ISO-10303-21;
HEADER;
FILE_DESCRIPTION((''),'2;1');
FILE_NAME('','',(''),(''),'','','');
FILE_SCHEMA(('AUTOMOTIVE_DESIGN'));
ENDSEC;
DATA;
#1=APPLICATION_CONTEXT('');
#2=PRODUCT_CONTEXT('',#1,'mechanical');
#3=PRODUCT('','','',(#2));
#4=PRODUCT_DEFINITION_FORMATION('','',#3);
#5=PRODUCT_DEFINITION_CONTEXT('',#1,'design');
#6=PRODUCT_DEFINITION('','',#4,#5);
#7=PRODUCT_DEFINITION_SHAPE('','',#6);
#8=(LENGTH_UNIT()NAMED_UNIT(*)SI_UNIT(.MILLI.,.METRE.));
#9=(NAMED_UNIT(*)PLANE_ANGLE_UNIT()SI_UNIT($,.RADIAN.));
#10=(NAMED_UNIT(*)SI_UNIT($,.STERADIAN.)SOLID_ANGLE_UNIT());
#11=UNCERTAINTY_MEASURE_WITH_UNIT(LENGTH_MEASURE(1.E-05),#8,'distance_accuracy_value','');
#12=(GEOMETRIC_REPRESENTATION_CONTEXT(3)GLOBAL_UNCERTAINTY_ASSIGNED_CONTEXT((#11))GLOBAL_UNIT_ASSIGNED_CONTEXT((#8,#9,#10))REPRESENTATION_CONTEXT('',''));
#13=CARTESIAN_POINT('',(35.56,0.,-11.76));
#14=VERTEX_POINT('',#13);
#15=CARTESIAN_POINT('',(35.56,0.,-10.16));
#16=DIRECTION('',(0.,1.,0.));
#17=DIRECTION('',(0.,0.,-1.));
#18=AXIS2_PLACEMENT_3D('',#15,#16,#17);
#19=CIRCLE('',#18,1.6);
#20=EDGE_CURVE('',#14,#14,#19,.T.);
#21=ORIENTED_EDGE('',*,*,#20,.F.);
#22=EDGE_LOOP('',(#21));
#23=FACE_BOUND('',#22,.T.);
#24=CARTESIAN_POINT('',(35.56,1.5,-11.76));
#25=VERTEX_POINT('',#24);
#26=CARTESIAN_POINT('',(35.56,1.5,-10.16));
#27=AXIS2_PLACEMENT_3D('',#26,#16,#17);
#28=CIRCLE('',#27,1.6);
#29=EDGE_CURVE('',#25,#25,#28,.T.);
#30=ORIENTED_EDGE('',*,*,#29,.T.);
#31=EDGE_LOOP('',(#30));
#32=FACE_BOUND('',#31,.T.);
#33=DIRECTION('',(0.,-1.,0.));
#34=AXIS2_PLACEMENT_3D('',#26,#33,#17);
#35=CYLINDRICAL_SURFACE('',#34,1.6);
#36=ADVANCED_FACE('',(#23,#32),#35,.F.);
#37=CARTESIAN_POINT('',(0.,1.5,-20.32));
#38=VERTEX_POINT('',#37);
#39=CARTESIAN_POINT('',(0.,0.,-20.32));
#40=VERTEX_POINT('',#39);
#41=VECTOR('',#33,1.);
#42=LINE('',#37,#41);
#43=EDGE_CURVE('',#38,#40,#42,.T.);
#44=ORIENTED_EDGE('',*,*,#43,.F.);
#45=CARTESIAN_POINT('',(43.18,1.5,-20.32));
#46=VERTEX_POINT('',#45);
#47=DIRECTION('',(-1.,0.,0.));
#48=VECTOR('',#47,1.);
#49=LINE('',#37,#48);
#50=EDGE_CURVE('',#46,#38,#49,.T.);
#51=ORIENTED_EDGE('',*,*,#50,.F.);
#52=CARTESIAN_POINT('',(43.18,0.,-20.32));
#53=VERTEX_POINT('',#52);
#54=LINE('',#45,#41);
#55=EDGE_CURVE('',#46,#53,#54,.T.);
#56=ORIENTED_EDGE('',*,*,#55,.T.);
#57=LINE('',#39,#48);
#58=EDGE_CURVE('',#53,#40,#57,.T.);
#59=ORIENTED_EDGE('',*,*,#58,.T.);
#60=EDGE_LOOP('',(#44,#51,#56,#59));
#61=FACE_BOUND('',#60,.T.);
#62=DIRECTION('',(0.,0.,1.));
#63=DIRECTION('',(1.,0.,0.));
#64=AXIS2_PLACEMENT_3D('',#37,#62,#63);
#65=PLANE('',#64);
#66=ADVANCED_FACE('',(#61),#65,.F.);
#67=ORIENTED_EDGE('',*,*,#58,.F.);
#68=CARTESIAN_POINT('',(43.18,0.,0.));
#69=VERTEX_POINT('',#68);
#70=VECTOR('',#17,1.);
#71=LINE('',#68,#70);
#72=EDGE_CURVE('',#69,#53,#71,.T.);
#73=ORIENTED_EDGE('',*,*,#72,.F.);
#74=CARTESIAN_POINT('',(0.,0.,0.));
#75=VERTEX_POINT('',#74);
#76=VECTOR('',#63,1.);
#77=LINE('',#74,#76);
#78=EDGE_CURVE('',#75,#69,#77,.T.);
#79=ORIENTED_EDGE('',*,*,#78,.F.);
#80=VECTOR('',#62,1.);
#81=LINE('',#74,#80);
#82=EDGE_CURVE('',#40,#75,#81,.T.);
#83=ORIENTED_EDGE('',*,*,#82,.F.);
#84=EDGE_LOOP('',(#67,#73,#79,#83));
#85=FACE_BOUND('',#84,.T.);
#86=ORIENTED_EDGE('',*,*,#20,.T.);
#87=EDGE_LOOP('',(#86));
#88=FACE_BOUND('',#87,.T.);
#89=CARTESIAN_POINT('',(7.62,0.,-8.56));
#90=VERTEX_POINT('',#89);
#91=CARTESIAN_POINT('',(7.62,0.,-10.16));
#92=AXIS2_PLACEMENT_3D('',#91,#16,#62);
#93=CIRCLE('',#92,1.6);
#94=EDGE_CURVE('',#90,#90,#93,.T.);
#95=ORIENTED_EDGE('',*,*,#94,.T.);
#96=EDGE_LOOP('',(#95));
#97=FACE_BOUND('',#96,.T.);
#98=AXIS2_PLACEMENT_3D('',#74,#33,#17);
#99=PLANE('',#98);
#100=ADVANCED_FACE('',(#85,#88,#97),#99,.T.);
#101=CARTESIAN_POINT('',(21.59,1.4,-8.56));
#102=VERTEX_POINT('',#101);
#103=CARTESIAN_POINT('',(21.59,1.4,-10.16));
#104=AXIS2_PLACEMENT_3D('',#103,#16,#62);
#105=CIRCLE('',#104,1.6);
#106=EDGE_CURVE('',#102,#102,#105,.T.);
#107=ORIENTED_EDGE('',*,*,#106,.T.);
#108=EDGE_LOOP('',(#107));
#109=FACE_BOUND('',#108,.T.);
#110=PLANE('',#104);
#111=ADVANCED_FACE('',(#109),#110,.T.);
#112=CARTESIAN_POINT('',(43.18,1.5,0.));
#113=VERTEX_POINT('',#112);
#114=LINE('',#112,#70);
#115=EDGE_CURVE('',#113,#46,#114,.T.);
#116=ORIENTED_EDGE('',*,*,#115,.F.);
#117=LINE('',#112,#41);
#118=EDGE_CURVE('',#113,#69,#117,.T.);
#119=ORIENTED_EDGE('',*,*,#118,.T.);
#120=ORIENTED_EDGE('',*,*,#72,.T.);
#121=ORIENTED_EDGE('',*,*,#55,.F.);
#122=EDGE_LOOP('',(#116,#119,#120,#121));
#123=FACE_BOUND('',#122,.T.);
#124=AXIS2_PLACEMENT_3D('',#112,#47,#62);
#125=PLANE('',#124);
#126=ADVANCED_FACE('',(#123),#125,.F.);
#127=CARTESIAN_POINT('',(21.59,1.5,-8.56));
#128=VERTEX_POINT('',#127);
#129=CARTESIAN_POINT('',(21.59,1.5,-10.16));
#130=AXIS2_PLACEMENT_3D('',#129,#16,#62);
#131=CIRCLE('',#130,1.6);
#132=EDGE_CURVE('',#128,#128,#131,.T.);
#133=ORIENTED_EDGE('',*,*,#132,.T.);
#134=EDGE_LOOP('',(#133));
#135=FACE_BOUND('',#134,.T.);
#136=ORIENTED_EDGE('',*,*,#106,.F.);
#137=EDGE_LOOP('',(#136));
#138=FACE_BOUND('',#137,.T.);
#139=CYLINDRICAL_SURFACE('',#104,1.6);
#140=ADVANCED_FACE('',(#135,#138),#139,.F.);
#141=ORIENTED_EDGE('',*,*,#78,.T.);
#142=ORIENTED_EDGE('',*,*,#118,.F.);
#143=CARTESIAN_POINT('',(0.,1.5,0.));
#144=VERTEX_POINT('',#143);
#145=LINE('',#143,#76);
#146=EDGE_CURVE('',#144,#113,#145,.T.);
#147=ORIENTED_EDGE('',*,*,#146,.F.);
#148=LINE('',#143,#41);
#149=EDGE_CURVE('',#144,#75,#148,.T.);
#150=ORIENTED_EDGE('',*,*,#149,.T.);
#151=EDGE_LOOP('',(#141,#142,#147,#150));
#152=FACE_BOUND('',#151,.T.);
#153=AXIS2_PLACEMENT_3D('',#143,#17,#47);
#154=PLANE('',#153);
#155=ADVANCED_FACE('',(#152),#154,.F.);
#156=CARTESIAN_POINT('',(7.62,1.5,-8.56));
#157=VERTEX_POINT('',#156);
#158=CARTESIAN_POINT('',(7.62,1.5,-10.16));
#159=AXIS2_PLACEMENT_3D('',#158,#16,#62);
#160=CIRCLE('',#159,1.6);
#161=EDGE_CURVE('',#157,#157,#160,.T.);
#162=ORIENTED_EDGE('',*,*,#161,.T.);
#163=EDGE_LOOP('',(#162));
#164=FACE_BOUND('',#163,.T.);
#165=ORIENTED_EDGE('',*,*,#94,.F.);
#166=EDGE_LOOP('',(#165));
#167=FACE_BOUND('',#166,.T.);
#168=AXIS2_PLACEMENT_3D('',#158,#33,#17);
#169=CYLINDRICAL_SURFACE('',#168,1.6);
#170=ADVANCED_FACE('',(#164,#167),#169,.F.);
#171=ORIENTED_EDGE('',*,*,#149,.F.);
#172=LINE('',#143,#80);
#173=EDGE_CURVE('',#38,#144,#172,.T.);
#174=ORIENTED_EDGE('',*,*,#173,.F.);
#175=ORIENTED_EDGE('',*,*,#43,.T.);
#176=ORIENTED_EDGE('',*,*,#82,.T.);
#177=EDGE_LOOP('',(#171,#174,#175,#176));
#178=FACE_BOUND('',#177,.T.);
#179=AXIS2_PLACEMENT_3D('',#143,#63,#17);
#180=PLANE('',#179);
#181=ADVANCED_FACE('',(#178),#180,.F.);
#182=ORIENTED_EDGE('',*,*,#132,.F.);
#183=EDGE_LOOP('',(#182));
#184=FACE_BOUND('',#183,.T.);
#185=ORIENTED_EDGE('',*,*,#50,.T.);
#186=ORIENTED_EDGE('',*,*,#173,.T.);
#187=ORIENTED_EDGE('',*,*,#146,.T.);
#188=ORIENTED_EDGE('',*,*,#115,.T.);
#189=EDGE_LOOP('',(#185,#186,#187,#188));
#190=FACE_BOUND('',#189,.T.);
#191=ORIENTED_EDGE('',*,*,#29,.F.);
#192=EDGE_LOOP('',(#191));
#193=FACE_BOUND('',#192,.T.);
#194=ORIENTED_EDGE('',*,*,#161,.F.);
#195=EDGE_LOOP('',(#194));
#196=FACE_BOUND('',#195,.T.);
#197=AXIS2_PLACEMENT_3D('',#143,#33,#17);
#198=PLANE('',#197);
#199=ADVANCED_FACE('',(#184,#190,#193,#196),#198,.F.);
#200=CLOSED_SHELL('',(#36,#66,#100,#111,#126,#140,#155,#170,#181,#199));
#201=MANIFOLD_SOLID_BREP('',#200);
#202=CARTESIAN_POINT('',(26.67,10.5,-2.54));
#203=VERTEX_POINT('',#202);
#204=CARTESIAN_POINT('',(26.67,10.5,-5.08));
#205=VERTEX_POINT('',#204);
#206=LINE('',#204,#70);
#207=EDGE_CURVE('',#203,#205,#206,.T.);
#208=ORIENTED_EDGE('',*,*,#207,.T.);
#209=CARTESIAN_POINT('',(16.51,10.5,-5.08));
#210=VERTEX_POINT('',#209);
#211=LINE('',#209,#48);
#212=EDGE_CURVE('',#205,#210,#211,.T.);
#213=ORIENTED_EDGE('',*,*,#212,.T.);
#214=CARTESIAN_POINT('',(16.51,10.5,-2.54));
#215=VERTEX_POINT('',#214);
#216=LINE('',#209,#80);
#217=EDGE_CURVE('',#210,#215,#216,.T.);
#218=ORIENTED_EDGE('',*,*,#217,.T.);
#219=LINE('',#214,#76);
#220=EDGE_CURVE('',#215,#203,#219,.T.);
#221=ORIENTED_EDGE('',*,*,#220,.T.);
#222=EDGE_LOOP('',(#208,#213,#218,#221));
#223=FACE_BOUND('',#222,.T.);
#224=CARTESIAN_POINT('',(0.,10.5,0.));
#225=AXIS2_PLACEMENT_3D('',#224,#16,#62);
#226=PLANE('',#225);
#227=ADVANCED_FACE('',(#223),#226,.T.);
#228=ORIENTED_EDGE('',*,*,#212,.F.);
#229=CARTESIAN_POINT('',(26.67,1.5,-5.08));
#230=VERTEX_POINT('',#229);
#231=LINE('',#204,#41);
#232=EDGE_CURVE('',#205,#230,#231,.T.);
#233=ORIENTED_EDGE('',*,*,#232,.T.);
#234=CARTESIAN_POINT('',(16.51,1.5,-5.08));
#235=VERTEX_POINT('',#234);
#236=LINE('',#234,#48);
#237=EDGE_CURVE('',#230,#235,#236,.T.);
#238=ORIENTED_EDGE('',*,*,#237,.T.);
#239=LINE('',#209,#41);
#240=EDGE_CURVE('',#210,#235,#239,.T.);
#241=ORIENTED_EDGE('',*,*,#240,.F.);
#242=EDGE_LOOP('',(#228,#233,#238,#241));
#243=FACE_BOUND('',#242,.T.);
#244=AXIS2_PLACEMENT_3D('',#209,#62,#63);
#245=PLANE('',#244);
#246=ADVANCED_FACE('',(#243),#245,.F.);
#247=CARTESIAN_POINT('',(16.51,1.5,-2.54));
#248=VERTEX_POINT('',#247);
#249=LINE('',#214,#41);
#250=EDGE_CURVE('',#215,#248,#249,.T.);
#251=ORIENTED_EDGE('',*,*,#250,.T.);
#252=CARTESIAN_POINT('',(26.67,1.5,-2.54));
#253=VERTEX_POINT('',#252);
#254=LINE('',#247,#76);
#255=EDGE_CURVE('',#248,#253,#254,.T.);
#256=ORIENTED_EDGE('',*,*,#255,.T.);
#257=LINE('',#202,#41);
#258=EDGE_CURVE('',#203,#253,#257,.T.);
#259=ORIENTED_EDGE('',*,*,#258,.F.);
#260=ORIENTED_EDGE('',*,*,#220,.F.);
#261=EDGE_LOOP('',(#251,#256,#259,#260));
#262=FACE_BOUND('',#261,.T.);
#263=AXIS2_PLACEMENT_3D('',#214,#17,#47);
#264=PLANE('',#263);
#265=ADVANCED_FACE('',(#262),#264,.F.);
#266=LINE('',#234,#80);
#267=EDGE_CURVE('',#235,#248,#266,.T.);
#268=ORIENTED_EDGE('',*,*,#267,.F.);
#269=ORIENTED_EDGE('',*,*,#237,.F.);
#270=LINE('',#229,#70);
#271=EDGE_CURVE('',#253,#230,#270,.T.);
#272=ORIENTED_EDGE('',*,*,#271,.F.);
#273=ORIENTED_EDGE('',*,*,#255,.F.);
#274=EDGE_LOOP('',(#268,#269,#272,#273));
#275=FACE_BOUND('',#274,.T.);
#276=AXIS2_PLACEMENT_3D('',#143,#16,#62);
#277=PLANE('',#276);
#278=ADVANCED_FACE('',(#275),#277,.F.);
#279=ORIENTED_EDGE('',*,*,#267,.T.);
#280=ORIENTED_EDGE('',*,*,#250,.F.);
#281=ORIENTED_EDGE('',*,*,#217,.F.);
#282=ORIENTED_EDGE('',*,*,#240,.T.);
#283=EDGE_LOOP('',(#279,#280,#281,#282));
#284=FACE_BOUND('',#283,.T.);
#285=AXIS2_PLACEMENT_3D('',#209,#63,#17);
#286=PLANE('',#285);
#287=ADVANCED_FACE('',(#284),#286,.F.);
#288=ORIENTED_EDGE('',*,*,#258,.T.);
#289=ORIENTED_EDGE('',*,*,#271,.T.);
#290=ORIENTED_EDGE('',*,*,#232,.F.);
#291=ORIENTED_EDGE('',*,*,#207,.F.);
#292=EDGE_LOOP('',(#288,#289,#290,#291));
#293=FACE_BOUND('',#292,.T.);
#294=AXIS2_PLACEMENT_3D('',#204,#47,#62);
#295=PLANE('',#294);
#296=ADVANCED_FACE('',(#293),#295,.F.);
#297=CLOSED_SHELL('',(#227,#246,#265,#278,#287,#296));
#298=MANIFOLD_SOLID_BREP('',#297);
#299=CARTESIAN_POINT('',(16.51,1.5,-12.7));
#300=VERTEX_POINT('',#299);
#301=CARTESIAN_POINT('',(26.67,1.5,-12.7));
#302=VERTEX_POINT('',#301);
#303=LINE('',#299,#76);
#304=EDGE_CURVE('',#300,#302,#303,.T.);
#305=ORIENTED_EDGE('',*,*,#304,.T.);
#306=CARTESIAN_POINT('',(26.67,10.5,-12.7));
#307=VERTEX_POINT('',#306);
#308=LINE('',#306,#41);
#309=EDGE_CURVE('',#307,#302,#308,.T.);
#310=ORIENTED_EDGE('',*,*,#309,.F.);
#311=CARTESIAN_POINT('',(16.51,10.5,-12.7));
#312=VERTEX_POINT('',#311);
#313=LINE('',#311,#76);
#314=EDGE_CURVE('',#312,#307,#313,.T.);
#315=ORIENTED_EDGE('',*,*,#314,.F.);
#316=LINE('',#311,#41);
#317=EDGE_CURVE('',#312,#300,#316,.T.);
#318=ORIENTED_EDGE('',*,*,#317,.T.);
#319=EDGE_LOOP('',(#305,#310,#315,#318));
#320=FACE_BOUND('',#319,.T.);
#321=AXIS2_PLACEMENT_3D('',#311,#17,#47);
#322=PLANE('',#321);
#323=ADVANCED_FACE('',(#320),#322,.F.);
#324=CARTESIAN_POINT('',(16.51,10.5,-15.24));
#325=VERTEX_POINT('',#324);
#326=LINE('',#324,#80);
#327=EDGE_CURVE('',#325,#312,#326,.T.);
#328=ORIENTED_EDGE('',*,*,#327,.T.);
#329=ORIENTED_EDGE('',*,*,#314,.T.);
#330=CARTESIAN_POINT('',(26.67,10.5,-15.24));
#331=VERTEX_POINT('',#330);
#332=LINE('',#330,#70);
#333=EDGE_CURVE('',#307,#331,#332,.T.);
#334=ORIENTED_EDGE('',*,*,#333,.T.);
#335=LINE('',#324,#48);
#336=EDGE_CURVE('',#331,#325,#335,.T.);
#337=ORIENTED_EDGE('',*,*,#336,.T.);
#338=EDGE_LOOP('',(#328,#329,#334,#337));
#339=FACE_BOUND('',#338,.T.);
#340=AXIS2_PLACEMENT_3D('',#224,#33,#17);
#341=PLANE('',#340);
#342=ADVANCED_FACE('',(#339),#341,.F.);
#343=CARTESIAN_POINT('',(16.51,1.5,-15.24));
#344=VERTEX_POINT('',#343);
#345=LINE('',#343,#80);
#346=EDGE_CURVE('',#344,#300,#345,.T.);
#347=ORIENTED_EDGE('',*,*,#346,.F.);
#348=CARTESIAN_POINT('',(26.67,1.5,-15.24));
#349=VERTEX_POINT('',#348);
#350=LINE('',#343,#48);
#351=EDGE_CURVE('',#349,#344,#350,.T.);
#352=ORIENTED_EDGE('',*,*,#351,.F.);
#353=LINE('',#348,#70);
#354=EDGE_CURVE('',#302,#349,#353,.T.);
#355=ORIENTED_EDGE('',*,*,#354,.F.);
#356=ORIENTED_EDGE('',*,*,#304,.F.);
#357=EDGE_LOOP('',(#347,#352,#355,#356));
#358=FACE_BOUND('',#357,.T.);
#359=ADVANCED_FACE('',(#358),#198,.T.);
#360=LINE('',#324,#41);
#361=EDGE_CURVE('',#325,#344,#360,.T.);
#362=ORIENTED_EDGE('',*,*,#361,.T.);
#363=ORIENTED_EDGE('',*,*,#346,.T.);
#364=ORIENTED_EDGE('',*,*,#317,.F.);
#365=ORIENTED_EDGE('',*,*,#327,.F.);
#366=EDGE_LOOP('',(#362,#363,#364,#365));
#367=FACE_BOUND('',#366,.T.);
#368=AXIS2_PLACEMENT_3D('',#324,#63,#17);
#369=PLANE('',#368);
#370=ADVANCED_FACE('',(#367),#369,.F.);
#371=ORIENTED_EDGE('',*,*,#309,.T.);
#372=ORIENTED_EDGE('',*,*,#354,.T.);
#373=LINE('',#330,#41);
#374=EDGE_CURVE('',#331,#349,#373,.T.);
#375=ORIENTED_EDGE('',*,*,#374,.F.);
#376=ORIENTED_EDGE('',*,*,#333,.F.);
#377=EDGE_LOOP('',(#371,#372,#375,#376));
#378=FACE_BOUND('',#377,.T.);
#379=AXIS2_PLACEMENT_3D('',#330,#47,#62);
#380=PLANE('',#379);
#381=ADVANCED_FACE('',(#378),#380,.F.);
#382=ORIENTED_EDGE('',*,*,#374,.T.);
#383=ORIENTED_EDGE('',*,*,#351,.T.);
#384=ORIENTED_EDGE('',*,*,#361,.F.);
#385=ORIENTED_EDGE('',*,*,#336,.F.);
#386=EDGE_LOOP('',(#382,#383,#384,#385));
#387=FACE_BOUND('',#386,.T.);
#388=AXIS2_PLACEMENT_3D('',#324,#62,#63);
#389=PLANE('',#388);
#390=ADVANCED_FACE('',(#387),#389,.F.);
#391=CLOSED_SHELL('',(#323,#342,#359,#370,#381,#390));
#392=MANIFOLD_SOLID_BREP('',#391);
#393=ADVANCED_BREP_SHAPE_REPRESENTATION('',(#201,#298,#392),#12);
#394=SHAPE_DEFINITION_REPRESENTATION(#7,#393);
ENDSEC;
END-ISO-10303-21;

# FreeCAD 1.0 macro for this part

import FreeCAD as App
import Part
import Sketcher
from FreeCAD import Vector
Q = App.Units.Quantity


def add_polygon(sketch, points):
    """Adds a closed chain of lines whose ends are joined by coincident constraints."""
    first, n = sketch.GeometryCount, len(points)
    for a, b in zip(points, points[1:] + points[:1]):
        sketch.addGeometry(Part.LineSegment(App.Vector(*a, 0), App.Vector(*b, 0)), False)
    for i in range(n):
        sketch.addConstraint(Sketcher.Constraint("Coincident", first + i, 2, first + (i + 1) % n, 1))

doc = App.newDocument("Part")
params = doc.addObject("Spreadsheet::Sheet", "Params")
for row, (alias, value) in enumerate([
    ("sketch1_diameter", "3.2 mm"),
    ("sketch1_width", "43.18 mm"),
    ("sketch1_height", "20.32 mm"),
    ("pad1_length", "1.5 mm"),
    ("sketch2_diameter", "3.2 mm"),
    ("pocket1_length", "0.1 mm"),
    ("sketch3_width", "10.16 mm"),
    ("sketch3_height", "2.54 mm"),
    ("pad2_length", "9 mm"),
    ("sketch4_width", "10.16 mm"),
    ("sketch4_height", "2.54 mm"),
    ("pad3_length", "9 mm"),
], start=1):
    params.set(f"A{row}", alias)
    params.set(f"B{row}", "=" + value)
    params.setAlias(f"B{row}", alias)

body = doc.addObject("PartDesign::Body", "Body")

# Sketch on XZ plane
sketch1 = body.newObject("Sketcher::SketchObject", "Sketch")
sketch1.AttachmentSupport = (doc.getObject("XZ_Plane"), [""])
sketch1.MapMode = "FlatFace"
add_polygon(sketch1, [(0, -20.3), (0, 0), (43.2, 0), (43.2, -20.3)])  # lines 0-3
sketch1.addGeometry(Part.Circle(Vector(7.6, -10.2, 0), Vector(0, 0, 1), 1.6), False)  # 4
sketch1.addGeometry(Part.Circle(Vector(35.6, -10.2, 0), Vector(0, 0, 1), 1.6), False)  # 5
sketch1.addConstraint([
    Sketcher.Constraint("Vertical", 0),
    Sketcher.Constraint("Horizontal", 1),
    Sketcher.Constraint("Vertical", 2),
    Sketcher.Constraint("Horizontal", 3),
    Sketcher.Constraint("Coincident", 0, 2, -1, 1),
    Sketcher.Constraint("Equal", 4, 5),
    Sketcher.Constraint("Horizontal", 4, 3, 5, 3),
    Sketcher.Constraint("Diameter", 4, Q("3.2 mm")),
    Sketcher.Constraint("DistanceX", 1, 1, 1, 2, Q("43.18 mm")),
    Sketcher.Constraint("DistanceY", 0, 1, 0, 2, Q("20.32 mm")),
    Sketcher.Constraint("DistanceX", -1, 1, 4, 3, Q("7.62 mm")),
    Sketcher.Constraint("DistanceY", 4, 3, -1, 1, Q("10.16 mm")),
    Sketcher.Constraint("DistanceX", -1, 1, 5, 3, Q("35.56 mm")),
])
sketch1.setExpression("Constraints[11]", "Params.sketch1_diameter")
sketch1.setExpression("Constraints[12]", "Params.sketch1_width")
sketch1.setExpression("Constraints[13]", "Params.sketch1_height")
pad1 = body.newObject("PartDesign::Pad", "Pad")
pad1.Profile = sketch1
pad1.setExpression("Length", "Params.pad1_length")
pad1.Reversed = True

# Sketch on XZ plane
sketch2 = body.newObject("Sketcher::SketchObject", "Sketch001")
sketch2.AttachmentSupport = (doc.getObject("XZ_Plane"), [""])
sketch2.MapMode = "FlatFace"
sketch2.AttachmentOffset = App.Placement(Vector(0, 0, -1.5), App.Rotation())
sketch2.addGeometry(Part.Circle(Vector(21.6, -10.2, 0), Vector(0, 0, 1), 1.6), False)
sketch2.addConstraint([
    Sketcher.Constraint("Diameter", 0, Q("3.2 mm")),
    Sketcher.Constraint("DistanceX", -1, 1, 0, 3, Q("21.59 mm")),
    Sketcher.Constraint("DistanceY", 0, 3, -1, 1, Q("10.16 mm")),
])
sketch2.setExpression("Constraints[0]", "Params.sketch2_diameter")
pocket1 = body.newObject("PartDesign::Pocket", "Pocket")
pocket1.Profile = sketch2
pocket1.setExpression("Length", "Params.pocket1_length")
pocket1.Reversed = True
body2 = doc.addObject("PartDesign::Body", "Body001")

# Sketch on XZ plane
sketch3 = body2.newObject("Sketcher::SketchObject", "Sketch002")
sketch3.AttachmentSupport = (doc.getObject("XZ_Plane001"), [""])
sketch3.MapMode = "FlatFace"
sketch3.AttachmentOffset = App.Placement(Vector(0, 0, -1.5), App.Rotation())
add_polygon(sketch3, [(16.5, -5.1), (16.5, -2.5), (26.7, -2.5), (26.7, -5.1)])  # lines 0-3
sketch3.addConstraint([
    Sketcher.Constraint("Vertical", 0),
    Sketcher.Constraint("Horizontal", 1),
    Sketcher.Constraint("Vertical", 2),
    Sketcher.Constraint("Horizontal", 3),
    Sketcher.Constraint("DistanceX", 1, 1, 1, 2, Q("10.16 mm")),
    Sketcher.Constraint("DistanceY", 0, 1, 0, 2, Q("2.54 mm")),
    Sketcher.Constraint("DistanceX", -1, 1, 0, 2, Q("16.51 mm")),
    Sketcher.Constraint("DistanceY", 0, 2, -1, 1, Q("2.54 mm")),
])
sketch3.setExpression("Constraints[8]", "Params.sketch3_width")
sketch3.setExpression("Constraints[9]", "Params.sketch3_height")
pad2 = body2.newObject("PartDesign::Pad", "Pad001")
pad2.Profile = sketch3
pad2.setExpression("Length", "Params.pad2_length")
pad2.Reversed = True
body3 = doc.addObject("PartDesign::Body", "Body002")

# Sketch on XZ plane
sketch4 = body3.newObject("Sketcher::SketchObject", "Sketch003")
sketch4.AttachmentSupport = (doc.getObject("XZ_Plane002"), [""])
sketch4.MapMode = "FlatFace"
sketch4.AttachmentOffset = App.Placement(Vector(0, 0, -1.5), App.Rotation())
add_polygon(sketch4, [(16.5, -15.2), (16.5, -12.7), (26.7, -12.7), (26.7, -15.2)])  # lines 0-3
sketch4.addConstraint([
    Sketcher.Constraint("Vertical", 0),
    Sketcher.Constraint("Horizontal", 1),
    Sketcher.Constraint("Vertical", 2),
    Sketcher.Constraint("Horizontal", 3),
    Sketcher.Constraint("DistanceX", 1, 1, 1, 2, Q("10.16 mm")),
    Sketcher.Constraint("DistanceY", 0, 1, 0, 2, Q("2.54 mm")),
    Sketcher.Constraint("DistanceY", 0, 2, -1, 1, Q("12.7 mm")),
    Sketcher.Constraint("DistanceX", -1, 1, 0, 2, Q("16.51 mm")),
])
sketch4.setExpression("Constraints[8]", "Params.sketch4_width")
sketch4.setExpression("Constraints[9]", "Params.sketch4_height")
pad3 = body3.newObject("PartDesign::Pad", "Pad002")
pad3.Profile = sketch4
pad3.setExpression("Length", "Params.pad3_length")
pad3.Reversed = True

doc.recompute()
